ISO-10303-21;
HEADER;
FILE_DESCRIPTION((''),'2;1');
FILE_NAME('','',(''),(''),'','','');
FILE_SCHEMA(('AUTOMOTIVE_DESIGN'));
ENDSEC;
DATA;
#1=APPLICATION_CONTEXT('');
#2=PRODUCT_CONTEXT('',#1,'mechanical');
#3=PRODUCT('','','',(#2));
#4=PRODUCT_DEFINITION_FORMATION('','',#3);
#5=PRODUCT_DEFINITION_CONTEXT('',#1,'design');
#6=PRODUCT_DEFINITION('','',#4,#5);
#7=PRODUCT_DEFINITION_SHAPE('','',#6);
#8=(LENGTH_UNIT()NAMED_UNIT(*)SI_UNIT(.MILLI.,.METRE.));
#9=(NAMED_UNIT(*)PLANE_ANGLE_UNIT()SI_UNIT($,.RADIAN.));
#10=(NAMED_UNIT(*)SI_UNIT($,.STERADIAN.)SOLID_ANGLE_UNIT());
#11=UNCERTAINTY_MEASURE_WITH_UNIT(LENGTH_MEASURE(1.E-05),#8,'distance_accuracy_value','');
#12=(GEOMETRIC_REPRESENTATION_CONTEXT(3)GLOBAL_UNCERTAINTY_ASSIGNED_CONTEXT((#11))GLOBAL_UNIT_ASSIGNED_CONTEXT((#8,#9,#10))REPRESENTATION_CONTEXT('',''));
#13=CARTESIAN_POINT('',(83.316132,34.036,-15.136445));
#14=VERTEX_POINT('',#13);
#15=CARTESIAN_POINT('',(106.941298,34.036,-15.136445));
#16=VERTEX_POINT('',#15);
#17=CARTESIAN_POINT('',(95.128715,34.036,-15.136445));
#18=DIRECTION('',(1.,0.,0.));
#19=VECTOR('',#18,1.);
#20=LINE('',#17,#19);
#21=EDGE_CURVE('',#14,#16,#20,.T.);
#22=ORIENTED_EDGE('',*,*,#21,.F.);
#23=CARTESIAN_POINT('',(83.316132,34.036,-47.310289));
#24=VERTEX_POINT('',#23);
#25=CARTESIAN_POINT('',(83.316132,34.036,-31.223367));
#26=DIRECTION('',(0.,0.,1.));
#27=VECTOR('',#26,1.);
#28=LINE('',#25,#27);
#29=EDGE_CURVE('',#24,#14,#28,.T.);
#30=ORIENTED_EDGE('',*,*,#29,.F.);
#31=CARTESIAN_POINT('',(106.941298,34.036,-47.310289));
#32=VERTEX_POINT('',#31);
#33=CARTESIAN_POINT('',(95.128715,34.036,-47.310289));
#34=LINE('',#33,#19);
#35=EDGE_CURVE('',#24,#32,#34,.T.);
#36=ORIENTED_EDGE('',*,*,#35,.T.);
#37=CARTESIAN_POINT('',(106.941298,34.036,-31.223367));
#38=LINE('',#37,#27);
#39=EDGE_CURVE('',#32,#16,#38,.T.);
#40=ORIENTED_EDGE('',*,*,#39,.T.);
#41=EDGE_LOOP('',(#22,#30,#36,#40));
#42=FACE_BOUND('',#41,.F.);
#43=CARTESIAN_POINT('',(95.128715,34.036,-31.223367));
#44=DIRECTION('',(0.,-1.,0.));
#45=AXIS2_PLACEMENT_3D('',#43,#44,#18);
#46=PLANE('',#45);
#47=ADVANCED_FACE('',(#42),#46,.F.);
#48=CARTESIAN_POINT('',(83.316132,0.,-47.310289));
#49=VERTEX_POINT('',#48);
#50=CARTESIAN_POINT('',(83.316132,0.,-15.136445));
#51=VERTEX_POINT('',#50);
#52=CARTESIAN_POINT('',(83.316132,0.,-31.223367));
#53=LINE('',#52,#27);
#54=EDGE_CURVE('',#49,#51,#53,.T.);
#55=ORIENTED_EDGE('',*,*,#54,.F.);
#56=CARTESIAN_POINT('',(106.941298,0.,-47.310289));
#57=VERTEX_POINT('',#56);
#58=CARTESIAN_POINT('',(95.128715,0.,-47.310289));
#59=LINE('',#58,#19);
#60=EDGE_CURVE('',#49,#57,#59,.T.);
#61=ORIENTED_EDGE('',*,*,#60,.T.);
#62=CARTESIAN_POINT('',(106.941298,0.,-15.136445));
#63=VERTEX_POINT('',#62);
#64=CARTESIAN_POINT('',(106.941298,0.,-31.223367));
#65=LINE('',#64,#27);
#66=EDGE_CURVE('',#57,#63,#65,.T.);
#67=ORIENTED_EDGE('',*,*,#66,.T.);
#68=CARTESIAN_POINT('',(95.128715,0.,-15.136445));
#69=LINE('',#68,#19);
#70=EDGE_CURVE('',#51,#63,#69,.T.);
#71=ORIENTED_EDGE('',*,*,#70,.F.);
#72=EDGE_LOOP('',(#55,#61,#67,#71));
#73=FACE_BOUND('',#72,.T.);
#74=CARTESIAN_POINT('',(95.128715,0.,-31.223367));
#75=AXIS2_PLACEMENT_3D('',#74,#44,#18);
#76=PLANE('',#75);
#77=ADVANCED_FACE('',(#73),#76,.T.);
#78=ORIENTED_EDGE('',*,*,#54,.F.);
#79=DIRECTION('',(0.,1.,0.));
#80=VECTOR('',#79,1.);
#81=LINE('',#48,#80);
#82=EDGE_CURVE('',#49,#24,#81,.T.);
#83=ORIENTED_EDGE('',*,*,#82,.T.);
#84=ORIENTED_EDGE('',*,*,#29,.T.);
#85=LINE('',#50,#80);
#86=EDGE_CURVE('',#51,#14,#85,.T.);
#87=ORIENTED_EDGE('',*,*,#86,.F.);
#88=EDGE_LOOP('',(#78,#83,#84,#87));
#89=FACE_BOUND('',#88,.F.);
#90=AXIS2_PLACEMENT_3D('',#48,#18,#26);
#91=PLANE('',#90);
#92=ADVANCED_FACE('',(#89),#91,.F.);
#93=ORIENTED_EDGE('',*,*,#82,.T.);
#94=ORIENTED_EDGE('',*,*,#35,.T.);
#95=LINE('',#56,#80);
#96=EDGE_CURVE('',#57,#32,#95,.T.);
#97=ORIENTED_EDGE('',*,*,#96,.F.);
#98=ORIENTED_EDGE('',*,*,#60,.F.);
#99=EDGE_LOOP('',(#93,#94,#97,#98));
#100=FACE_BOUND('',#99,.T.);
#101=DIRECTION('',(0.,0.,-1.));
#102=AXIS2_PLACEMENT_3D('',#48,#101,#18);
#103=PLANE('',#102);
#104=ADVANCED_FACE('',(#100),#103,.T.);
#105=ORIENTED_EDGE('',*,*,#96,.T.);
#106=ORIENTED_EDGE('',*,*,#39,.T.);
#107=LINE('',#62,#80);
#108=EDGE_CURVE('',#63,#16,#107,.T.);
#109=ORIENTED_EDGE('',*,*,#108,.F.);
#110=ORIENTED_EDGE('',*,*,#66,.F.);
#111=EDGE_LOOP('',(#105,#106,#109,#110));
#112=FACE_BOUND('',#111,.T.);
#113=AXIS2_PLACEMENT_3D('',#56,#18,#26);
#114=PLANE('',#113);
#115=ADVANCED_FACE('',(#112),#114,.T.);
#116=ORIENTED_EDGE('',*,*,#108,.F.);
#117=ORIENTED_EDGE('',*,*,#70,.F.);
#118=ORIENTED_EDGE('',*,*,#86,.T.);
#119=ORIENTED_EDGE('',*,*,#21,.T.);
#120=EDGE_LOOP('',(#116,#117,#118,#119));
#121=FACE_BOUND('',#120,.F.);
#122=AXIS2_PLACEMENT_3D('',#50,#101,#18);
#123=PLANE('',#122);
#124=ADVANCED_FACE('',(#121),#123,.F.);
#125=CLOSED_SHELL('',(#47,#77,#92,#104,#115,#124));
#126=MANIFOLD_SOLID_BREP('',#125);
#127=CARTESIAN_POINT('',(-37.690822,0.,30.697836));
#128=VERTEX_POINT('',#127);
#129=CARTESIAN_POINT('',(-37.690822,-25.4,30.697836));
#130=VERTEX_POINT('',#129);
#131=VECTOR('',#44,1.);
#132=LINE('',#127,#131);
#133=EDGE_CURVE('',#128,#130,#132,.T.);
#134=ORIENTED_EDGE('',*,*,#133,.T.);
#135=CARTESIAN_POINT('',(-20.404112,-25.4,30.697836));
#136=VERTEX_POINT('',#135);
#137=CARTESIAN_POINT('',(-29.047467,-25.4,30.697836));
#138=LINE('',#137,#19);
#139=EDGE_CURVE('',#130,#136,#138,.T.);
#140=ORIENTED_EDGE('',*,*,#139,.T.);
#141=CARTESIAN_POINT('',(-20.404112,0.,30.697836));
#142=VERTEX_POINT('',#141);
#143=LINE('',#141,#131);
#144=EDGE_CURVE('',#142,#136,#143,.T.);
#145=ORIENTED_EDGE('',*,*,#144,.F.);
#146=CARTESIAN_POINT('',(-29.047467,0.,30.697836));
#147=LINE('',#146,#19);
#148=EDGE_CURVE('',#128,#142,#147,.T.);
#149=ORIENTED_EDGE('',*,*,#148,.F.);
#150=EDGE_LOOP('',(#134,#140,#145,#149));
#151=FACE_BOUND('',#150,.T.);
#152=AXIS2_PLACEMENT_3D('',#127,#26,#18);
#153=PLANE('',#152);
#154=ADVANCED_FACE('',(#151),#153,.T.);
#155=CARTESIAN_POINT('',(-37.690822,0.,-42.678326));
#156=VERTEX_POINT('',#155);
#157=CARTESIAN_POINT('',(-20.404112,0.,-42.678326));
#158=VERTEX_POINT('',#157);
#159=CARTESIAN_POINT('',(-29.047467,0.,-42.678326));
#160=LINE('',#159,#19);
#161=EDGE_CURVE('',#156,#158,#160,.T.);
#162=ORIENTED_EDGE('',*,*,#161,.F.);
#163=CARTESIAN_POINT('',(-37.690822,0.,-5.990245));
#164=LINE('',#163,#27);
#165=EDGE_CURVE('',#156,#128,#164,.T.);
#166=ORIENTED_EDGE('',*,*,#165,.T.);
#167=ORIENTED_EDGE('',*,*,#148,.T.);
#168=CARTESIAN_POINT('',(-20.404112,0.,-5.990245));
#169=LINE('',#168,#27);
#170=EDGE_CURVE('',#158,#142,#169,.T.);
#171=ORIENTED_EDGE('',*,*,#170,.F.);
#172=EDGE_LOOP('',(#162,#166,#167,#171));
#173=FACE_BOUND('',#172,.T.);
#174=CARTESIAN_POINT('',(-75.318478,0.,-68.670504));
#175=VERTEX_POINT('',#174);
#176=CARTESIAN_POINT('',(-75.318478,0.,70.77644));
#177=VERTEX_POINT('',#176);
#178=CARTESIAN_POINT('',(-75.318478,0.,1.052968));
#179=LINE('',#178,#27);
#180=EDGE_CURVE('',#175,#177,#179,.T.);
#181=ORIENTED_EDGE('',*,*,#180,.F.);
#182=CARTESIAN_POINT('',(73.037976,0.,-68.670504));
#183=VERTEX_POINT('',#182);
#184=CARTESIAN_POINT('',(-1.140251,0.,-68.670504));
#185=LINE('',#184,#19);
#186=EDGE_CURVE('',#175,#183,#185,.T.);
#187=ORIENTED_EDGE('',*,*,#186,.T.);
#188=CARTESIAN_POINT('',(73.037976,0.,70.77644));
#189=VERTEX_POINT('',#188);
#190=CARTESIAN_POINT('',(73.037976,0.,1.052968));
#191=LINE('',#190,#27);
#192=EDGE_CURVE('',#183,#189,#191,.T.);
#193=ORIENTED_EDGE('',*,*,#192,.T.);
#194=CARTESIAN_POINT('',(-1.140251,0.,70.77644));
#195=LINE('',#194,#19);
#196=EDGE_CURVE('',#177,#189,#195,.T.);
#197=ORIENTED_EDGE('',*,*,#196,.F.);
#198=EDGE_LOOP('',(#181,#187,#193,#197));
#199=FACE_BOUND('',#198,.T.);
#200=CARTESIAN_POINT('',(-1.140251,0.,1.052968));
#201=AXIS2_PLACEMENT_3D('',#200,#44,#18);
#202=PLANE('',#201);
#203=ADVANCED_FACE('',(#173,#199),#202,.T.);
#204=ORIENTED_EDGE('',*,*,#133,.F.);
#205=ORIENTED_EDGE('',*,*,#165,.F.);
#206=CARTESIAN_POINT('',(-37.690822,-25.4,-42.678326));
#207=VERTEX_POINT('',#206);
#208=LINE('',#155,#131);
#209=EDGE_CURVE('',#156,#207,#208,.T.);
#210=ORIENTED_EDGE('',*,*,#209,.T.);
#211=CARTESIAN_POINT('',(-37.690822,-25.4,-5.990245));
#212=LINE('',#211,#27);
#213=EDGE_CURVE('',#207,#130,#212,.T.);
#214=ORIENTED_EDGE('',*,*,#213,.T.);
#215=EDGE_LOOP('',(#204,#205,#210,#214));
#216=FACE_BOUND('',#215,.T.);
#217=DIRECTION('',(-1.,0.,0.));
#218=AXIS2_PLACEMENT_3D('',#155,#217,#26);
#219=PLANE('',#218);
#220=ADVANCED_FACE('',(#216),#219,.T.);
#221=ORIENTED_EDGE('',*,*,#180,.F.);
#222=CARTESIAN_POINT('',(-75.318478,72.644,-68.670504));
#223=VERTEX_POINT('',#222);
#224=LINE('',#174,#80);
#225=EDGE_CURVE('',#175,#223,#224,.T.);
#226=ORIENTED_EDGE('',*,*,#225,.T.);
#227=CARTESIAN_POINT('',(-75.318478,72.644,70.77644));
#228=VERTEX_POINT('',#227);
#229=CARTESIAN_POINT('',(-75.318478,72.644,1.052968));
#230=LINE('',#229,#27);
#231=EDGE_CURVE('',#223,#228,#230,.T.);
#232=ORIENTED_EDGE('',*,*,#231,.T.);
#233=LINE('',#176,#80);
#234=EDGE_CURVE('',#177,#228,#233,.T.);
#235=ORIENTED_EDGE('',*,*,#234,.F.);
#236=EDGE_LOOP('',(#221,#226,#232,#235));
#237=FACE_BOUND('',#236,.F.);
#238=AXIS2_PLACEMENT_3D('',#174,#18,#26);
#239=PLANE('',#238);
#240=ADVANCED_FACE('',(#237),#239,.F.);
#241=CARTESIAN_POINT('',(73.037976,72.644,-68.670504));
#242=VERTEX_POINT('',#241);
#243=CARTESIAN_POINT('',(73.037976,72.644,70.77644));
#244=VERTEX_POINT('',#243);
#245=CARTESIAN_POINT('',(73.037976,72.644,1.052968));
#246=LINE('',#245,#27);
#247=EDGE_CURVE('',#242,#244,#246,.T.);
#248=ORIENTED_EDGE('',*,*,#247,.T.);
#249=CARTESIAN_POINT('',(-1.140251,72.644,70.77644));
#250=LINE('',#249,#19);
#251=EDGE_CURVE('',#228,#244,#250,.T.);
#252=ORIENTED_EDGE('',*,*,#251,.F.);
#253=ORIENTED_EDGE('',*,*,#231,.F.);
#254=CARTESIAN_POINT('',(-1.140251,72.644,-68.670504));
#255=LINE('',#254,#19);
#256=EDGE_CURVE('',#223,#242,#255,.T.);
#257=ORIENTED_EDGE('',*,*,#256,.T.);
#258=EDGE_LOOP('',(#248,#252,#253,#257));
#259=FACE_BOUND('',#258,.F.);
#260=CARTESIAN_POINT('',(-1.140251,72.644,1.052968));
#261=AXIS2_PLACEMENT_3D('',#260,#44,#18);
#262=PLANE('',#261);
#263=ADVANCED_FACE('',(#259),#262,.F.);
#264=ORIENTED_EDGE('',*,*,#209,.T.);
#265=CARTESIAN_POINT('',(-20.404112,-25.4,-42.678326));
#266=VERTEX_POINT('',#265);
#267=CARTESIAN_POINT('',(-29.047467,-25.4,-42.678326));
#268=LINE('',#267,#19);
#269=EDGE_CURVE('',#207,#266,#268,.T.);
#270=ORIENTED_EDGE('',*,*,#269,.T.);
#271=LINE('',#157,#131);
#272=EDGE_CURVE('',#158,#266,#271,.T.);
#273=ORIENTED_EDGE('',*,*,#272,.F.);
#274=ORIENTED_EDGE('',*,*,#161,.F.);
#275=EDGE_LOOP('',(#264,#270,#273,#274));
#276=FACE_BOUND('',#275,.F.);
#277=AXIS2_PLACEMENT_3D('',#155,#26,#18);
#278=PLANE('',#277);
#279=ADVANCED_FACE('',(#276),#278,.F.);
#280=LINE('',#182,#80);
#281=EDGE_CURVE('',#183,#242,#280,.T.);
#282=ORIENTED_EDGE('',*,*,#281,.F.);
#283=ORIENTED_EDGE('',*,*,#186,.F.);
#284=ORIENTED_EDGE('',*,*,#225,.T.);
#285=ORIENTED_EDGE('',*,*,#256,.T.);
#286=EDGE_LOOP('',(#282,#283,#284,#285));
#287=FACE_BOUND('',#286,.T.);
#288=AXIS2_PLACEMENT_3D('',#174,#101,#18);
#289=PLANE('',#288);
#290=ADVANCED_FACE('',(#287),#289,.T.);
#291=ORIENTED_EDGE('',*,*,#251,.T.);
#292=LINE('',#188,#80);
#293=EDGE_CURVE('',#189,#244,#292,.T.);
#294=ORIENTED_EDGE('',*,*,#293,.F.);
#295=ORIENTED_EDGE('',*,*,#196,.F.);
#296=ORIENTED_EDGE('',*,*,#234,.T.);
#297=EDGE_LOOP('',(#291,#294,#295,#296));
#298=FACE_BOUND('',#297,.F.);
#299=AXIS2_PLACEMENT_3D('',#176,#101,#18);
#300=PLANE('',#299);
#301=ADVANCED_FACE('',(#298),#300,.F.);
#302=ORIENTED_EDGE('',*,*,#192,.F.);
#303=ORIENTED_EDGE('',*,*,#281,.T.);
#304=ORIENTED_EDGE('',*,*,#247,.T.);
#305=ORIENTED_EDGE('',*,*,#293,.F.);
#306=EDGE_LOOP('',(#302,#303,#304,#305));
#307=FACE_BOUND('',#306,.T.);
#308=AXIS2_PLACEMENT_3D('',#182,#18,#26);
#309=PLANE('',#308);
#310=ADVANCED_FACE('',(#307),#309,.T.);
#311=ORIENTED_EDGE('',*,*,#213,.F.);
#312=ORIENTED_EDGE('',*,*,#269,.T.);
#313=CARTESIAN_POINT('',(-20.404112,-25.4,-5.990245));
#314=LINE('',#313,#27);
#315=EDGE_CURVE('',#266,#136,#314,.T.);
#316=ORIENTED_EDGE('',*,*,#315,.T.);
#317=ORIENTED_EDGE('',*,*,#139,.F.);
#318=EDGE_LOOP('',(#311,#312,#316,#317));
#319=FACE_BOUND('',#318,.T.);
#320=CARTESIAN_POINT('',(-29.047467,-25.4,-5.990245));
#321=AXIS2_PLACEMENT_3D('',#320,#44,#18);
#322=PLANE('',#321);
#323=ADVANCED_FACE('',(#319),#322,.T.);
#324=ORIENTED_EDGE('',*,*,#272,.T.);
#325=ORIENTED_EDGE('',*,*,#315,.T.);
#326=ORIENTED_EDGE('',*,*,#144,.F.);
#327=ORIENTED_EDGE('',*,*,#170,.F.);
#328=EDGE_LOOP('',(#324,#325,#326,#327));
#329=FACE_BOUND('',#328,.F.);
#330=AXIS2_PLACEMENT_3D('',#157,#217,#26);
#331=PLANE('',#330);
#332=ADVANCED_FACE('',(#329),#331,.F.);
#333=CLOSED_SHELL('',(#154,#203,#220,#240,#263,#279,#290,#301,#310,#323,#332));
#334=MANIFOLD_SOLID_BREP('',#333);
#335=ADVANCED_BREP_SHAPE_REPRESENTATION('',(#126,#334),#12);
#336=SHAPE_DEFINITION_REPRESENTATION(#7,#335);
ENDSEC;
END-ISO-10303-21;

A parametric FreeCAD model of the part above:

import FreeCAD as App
import Part
import Sketcher

V = App.Vector
Q = App.Units.Quantity


def add_polygon(sketch, points):
    """Adds a closed chain of lines whose ends are joined by coincident constraints."""
    first, n = sketch.GeometryCount, len(points)
    for a, b in zip(points, points[1:] + points[:1]):
        sketch.addGeometry(Part.LineSegment(App.Vector(*a, 0), App.Vector(*b, 0)), False)
    for i in range(n):
        sketch.addConstraint(Sketcher.Constraint("Coincident", first + i, 2, first + (i + 1) % n, 1))

doc = App.newDocument("Part")
body = doc.addObject("PartDesign::Body", "Body")

sketch1 = body.newObject("Sketcher::SketchObject", "Sketch")
sketch1.AttachmentSupport = (doc.getObject("XZ_Plane"), [""])
sketch1.MapMode = "FlatFace"
add_polygon(sketch1, [(-75, 71), (-75, -69), (73, -69), (73, 71)])
sketch1.addConstraint([
    Sketcher.Constraint("Vertical", 0),
    Sketcher.Constraint("Horizontal", 1),
    Sketcher.Constraint("Vertical", 2),
    Sketcher.Constraint("Horizontal", 3),
    Sketcher.Constraint("DistanceX", 1, 1, 1, 2, Q("148.356453 mm")),
    Sketcher.Constraint("DistanceY", 0, 2, 0, 1, Q("139.446944 mm")),
    Sketcher.Constraint("DistanceY", -1, 1, 2, 2, Q("70.77644 mm")),
    Sketcher.Constraint("DistanceX", 0, 2, -1, 1, Q("75.318478 mm")),
])
pad1 = body.newObject("PartDesign::Pad", "Pad")
pad1.Profile = sketch1
pad1.Length = Q("2.86 in")
pad1.Reversed = True

sketch2 = body.newObject("Sketcher::SketchObject", "Sketch001")
sketch2.AttachmentSupport = (doc.getObject("XZ_Plane"), [""])
sketch2.MapMode = "FlatFace"
add_polygon(sketch2, [(-38, 31), (-38, -43), (-20, -43), (-20, 31)])
sketch2.addConstraint([
    Sketcher.Constraint("Vertical", 0),
    Sketcher.Constraint("Horizontal", 1),
    Sketcher.Constraint("Vertical", 2),
    Sketcher.Constraint("Horizontal", 3),
    Sketcher.Constraint("DistanceX", 1, 1, 1, 2, Q("17.28671 mm")),
    Sketcher.Constraint("DistanceY", 0, 2, 0, 1, Q("73.376162 mm")),
    Sketcher.Constraint("DistanceX", 0, 2, -1, 1, Q("37.690822 mm")),
    Sketcher.Constraint("DistanceY", 0, 2, -1, 1, Q("42.678326 mm")),
])
pad2 = body.newObject("PartDesign::Pad", "Pad001")
pad2.Profile = sketch2
pad2.Length = Q("1 in")
body2 = doc.addObject("PartDesign::Body", "Body001")

sketch3 = body2.newObject("Sketcher::SketchObject", "Sketch002")
sketch3.AttachmentSupport = (doc.getObject("XZ_Plane001"), [""])
sketch3.MapMode = "FlatFace"
add_polygon(sketch3, [(83, -15), (83, -47), (107, -47), (107, -15)])
sketch3.addConstraint([
    Sketcher.Constraint("Vertical", 0),
    Sketcher.Constraint("Horizontal", 1),
    Sketcher.Constraint("Vertical", 2),
    Sketcher.Constraint("Horizontal", 3),
    Sketcher.Constraint("DistanceX", -1, 1, 1, 2, Q("106.941298 mm")),
    Sketcher.Constraint("DistanceX", 1, 1, 1, 2, Q("23.625166 mm")),
    Sketcher.Constraint("DistanceY", 0, 2, 0, 1, Q("32.173844 mm")),
    Sketcher.Constraint("DistanceY", 0, 2, -1, 1, Q("47.310289 mm")),
])
pad3 = body2.newObject("PartDesign::Pad", "Pad002")
pad3.Profile = sketch3
pad3.Length = Q("1.34 in")
pad3.Reversed = True

doc.recompute()
